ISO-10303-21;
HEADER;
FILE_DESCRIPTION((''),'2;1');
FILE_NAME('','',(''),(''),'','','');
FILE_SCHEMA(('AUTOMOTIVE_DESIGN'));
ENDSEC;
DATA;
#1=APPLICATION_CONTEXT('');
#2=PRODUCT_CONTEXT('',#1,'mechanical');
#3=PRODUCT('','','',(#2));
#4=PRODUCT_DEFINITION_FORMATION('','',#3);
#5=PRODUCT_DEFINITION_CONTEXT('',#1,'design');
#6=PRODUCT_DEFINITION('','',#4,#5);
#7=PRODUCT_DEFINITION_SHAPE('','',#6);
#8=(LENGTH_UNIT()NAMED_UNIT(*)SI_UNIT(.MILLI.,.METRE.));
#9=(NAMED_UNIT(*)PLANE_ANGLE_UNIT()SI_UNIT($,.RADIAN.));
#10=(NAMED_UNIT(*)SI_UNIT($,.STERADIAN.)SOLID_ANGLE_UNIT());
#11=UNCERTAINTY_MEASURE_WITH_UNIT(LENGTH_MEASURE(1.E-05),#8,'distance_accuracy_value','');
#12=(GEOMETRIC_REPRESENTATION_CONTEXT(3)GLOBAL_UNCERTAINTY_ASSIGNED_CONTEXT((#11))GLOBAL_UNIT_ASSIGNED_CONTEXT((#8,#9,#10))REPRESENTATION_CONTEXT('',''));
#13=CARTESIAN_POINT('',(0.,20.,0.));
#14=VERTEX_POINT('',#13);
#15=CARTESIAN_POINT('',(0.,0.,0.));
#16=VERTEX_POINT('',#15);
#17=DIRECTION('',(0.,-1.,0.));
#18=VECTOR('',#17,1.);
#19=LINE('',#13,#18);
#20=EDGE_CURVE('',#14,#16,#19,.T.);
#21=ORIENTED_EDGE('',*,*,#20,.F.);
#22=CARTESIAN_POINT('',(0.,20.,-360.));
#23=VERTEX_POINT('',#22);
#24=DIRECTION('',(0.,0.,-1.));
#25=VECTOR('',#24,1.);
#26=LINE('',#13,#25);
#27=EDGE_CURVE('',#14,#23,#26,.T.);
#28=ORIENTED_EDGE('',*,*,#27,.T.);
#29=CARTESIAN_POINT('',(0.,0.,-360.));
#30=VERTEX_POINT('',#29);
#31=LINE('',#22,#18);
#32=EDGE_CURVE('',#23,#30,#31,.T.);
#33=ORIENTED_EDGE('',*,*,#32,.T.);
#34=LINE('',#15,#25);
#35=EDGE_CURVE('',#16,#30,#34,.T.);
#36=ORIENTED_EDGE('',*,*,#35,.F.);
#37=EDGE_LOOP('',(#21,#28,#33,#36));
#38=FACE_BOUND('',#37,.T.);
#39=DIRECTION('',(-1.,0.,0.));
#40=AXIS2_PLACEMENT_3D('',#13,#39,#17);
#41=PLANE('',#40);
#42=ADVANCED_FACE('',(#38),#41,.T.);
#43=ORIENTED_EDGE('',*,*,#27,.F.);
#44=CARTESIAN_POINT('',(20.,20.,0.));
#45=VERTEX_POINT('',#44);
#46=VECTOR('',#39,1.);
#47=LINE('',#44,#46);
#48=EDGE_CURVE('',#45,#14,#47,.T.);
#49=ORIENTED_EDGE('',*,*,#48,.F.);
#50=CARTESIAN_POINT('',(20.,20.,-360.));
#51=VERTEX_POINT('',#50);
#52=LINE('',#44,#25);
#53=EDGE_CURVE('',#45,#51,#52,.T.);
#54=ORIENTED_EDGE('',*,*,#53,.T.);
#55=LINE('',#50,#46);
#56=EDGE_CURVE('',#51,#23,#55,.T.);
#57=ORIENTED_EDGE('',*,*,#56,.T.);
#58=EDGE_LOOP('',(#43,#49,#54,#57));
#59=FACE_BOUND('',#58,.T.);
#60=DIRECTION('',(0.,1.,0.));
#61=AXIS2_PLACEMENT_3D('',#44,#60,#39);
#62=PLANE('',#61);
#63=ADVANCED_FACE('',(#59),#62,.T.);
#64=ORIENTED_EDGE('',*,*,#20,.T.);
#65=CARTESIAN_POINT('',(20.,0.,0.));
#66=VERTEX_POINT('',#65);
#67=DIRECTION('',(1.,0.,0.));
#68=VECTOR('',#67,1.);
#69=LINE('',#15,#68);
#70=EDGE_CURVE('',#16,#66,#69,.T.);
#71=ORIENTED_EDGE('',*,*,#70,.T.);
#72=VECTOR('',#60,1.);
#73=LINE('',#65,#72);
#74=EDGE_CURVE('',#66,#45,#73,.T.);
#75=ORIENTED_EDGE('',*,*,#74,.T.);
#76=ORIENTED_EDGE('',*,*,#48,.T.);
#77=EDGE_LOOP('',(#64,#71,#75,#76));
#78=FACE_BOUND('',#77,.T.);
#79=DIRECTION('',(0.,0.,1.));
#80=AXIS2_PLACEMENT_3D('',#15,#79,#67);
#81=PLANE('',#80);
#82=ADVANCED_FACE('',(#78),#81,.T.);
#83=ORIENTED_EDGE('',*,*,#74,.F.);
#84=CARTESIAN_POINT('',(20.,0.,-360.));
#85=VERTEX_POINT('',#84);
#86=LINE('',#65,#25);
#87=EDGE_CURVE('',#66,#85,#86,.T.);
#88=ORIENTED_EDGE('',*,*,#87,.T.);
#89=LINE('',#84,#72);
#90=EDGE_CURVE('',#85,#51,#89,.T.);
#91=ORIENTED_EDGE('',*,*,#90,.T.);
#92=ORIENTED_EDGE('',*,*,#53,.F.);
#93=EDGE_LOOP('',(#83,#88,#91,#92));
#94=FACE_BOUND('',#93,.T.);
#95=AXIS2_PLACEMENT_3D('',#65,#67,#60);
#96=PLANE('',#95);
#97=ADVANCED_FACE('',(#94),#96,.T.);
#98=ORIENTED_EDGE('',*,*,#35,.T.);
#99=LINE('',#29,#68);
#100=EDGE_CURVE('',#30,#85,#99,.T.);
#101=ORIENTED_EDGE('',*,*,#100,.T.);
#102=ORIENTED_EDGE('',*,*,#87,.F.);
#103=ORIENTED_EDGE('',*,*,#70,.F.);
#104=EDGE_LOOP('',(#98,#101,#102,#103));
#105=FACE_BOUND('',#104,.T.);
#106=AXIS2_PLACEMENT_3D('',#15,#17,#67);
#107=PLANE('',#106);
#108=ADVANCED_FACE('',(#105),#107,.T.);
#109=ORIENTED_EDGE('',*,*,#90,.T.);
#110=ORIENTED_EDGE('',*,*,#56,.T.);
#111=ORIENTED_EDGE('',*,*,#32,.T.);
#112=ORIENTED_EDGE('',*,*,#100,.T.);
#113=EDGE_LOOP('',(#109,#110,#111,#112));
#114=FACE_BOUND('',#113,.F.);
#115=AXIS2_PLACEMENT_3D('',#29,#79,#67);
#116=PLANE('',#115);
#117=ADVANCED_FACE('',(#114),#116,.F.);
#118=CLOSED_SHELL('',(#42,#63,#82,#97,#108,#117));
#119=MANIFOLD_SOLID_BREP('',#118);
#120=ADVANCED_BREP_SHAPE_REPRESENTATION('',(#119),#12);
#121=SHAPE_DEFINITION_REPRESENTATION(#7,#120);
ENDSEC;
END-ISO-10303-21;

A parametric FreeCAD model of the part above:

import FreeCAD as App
import Part
import Sketcher

V = App.Vector

doc = App.newDocument("Part")
body = doc.addObject("PartDesign::Body", "Body")

sketch1 = body.newObject("Sketcher::SketchObject", "Sketch")
sketch1.AttachmentSupport = (doc.getObject("XY_Plane"), [""])
sketch1.MapMode = "FlatFace"
sketch1.addGeometry([
    Part.LineSegment(V(0, 20, 0), V(0, 0, 0)),
    Part.LineSegment(V(0, 0, 0), V(20, 0, 0)),
    Part.LineSegment(V(20, 0, 0), V(20, 20, 0)),
    Part.LineSegment(V(20, 20, 0), V(0, 20, 0)),
], False)
sketch1.addConstraint([
    Sketcher.Constraint("Coincident", 0, 2, 1, 1),
    Sketcher.Constraint("Coincident", 1, 2, 2, 1),
    Sketcher.Constraint("Coincident", 2, 2, 3, 1),
    Sketcher.Constraint("Coincident", 3, 2, 0, 1),
    Sketcher.Constraint("Vertical", 0),
    Sketcher.Constraint("Horizontal", 1),
    Sketcher.Constraint("Vertical", 2),
    Sketcher.Constraint("Horizontal", 3),
    Sketcher.Constraint("Coincident", 0, 2, -1, 1),
    Sketcher.Constraint("Equal", 3, 0),
    Sketcher.Constraint("DistanceX", 1, 1, 1, 2, 20.0),
])
pad1 = body.newObject("PartDesign::Pad", "Pad")
pad1.Profile = sketch1
pad1.Length = 360
pad1.Reversed = True

doc.recompute()
